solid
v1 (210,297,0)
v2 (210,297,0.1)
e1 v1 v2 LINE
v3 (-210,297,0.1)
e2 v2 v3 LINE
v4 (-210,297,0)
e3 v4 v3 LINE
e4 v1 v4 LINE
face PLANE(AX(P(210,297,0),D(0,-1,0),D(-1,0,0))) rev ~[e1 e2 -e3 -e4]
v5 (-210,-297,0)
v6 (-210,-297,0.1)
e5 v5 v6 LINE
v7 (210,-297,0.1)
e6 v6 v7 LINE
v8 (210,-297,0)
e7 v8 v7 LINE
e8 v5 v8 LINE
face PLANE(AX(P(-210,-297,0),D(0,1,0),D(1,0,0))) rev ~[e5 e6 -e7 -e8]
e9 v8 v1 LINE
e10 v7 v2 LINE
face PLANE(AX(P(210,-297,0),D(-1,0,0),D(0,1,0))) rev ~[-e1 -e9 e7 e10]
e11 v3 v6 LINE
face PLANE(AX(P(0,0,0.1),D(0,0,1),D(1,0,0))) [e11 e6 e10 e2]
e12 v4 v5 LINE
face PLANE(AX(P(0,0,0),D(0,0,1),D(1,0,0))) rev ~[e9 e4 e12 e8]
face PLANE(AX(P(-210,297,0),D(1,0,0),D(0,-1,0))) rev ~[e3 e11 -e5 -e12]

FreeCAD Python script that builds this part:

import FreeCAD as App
import Part
import Sketcher
from FreeCAD import Vector
Q = App.Units.Quantity

doc = App.newDocument("Part")
body = doc.addObject("PartDesign::Body", "Body")

sketch1 = body.newObject("Sketcher::SketchObject", "Sketch")
sketch1.AttachmentSupport = (doc.getObject("XY_Plane"), [""])
sketch1.MapMode = "FlatFace"
sketch1.addGeometry(Part.LineSegment(Vector(210, -297, 0), Vector(210, 297, 0)), False)
sketch1.addGeometry(Part.LineSegment(Vector(210, 297, 0), Vector(-210, 297, 0)), False)
sketch1.addGeometry(Part.LineSegment(Vector(-210, 297, 0), Vector(-210, -297, 0)), False)
sketch1.addGeometry(Part.LineSegment(Vector(-210, -297, 0), Vector(210, -297, 0)), False)
sketch1.addConstraint(Sketcher.Constraint("Coincident", 0, 2, 1, 1))
sketch1.addConstraint(Sketcher.Constraint("Coincident", 1, 2, 2, 1))
sketch1.addConstraint(Sketcher.Constraint("Coincident", 2, 2, 3, 1))
sketch1.addConstraint(Sketcher.Constraint("Coincident", 3, 2, 0, 1))
sketch1.addConstraint(Sketcher.Constraint("Vertical", 0))
sketch1.addConstraint(Sketcher.Constraint("Horizontal", 1))
sketch1.addConstraint(Sketcher.Constraint("Vertical", 2))
sketch1.addConstraint(Sketcher.Constraint("Horizontal", 3))
sketch1.addConstraint(Sketcher.Constraint("Symmetric", 0, 2, 2, 2, -1, 1))
sketch1.addConstraint(Sketcher.Constraint("DistanceX", 1, 2, 1, 1, Q("420 mm")))
sketch1.addConstraint(Sketcher.Constraint("DistanceY", 0, 1, 0, 2, Q("594 mm")))
pad1 = body.newObject("PartDesign::Pad", "Pad")
pad1.Profile = sketch1
pad1.Length = 0.1

doc.recompute()
